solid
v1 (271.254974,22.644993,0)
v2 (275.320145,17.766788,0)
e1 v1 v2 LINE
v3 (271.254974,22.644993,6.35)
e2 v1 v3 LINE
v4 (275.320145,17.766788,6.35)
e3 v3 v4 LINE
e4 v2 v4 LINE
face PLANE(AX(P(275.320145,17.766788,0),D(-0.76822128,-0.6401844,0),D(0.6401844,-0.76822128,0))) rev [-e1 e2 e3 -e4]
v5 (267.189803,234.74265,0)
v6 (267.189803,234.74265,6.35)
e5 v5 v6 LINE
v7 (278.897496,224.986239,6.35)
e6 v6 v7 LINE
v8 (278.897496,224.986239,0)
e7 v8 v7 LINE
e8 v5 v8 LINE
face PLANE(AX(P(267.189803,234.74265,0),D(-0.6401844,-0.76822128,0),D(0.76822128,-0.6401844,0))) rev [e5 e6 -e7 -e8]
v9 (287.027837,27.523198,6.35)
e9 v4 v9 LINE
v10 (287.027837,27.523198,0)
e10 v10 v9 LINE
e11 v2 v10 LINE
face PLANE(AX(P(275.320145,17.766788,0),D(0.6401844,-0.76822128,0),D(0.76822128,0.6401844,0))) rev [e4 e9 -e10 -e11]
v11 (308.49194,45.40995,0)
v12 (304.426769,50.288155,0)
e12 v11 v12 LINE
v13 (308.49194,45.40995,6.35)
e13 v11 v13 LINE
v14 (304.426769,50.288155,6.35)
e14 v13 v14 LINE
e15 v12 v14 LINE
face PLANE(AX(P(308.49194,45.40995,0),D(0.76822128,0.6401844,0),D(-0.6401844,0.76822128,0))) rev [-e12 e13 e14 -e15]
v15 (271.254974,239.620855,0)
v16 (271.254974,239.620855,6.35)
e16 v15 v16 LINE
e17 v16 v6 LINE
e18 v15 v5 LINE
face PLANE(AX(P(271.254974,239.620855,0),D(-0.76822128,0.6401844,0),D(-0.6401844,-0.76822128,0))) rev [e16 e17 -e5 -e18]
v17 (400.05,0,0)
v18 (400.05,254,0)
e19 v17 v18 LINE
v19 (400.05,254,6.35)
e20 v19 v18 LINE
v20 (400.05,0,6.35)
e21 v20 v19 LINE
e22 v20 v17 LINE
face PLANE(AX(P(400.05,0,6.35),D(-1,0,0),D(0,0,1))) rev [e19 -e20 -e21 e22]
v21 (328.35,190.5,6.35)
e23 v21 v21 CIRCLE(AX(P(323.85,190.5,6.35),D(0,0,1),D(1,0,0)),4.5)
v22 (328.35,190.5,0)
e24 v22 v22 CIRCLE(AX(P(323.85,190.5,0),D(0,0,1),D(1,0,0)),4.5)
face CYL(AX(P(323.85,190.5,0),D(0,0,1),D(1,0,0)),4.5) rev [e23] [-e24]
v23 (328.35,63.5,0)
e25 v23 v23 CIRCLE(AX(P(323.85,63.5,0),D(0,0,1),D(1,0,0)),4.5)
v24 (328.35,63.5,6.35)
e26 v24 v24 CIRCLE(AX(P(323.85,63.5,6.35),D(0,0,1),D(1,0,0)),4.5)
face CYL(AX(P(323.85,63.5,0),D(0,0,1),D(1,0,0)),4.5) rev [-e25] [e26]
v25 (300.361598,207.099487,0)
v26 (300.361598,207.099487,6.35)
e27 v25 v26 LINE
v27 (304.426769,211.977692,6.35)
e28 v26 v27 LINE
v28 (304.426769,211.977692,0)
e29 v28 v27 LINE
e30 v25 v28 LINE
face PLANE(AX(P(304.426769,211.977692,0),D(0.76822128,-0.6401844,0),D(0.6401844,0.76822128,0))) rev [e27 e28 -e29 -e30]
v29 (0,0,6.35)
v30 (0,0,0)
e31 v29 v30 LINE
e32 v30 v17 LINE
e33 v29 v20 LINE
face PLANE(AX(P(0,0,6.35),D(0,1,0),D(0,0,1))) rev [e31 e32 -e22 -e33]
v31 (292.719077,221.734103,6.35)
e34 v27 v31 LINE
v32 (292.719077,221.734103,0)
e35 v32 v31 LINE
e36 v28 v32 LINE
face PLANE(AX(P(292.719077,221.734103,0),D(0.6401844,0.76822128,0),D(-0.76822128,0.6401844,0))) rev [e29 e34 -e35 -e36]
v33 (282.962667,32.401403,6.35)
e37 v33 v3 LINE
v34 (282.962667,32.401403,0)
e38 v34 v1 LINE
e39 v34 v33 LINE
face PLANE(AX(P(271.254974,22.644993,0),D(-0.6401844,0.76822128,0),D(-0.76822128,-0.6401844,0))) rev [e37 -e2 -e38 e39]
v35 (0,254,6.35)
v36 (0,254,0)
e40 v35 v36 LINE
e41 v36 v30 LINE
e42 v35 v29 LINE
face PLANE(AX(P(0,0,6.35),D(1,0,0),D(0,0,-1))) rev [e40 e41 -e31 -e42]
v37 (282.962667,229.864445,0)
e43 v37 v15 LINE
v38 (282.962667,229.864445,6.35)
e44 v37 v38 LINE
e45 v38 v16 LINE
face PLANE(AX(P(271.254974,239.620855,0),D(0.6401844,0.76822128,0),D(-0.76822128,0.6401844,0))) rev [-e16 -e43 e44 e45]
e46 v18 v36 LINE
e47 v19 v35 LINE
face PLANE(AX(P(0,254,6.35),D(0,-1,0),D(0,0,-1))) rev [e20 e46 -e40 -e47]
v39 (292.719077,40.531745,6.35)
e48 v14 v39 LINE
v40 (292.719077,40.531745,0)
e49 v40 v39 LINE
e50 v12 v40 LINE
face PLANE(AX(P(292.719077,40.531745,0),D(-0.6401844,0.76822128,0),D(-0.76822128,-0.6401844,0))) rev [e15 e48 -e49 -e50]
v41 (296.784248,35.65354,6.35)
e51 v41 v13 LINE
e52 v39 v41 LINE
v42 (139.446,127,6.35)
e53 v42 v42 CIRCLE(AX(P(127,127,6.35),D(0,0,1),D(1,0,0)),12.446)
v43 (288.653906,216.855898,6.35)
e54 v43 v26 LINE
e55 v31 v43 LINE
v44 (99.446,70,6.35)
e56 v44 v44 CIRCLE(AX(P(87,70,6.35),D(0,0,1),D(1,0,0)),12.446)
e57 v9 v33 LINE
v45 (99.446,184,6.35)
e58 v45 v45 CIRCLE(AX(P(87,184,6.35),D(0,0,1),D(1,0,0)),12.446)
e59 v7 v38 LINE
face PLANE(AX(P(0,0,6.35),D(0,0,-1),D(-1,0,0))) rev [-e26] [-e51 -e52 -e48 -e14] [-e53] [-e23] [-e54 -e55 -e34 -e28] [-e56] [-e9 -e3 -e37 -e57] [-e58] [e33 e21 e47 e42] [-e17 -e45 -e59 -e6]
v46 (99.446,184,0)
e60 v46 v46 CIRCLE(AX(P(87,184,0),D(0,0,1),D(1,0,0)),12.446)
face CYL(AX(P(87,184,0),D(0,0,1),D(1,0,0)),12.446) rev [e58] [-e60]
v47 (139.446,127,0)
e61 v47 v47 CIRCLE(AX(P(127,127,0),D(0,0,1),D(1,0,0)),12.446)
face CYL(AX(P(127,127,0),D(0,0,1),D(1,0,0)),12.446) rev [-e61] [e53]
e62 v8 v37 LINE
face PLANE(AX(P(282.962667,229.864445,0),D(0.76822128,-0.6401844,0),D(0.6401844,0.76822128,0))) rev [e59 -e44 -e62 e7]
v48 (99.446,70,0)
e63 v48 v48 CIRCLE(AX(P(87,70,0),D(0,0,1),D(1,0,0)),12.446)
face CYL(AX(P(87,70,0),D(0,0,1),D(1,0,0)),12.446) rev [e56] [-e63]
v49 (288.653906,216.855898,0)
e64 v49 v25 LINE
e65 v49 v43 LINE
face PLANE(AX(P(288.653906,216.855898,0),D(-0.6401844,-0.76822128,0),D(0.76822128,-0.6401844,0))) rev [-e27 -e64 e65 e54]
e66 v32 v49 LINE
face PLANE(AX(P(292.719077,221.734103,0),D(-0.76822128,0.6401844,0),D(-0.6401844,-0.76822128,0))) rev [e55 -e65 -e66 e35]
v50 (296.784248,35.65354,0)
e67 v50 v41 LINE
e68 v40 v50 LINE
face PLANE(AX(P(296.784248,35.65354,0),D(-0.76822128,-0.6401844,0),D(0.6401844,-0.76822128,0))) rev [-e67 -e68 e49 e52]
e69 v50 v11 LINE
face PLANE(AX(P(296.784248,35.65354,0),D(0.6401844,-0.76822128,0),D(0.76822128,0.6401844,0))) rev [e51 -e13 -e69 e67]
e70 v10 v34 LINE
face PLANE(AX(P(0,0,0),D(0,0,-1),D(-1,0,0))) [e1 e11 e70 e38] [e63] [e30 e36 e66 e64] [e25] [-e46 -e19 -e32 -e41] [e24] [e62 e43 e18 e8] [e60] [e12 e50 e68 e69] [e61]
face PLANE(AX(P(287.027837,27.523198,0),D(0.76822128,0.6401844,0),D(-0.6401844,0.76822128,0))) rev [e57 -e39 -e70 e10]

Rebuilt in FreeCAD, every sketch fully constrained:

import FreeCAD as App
import Part
import Sketcher

V = App.Vector
Q = App.Units.Quantity

doc = App.newDocument("Part")
body = doc.addObject("PartDesign::Body", "Body")

# Sketch on XY plane
sketch1 = doc.addObject("Sketcher::SketchObject", "Sketch")
body.addObject(sketch1)
sketch1.AttachmentSupport = (doc.XY_Plane, [""])
sketch1.MapMode = "FlatFace"
sketch1.addGeometry([
    Part.LineSegment(V(0, 254, 0), V(0, 0, 0)),
    Part.LineSegment(V(0, 0, 0), V(400, 0, 0)),
    Part.LineSegment(V(400, 0, 0), V(400, 254, 0)),
    Part.LineSegment(V(400, 254, 0), V(0, 254, 0)),
], False)
sketch1.addConstraint([
    Sketcher.Constraint("Coincident", 0, 2, 1, 1),
    Sketcher.Constraint("Coincident", 1, 2, 2, 1),
    Sketcher.Constraint("Coincident", 2, 2, 3, 1),
    Sketcher.Constraint("Coincident", 3, 2, 0, 1),
    Sketcher.Constraint("Vertical", 0),
    Sketcher.Constraint("Horizontal", 1),
    Sketcher.Constraint("Vertical", 2),
    Sketcher.Constraint("Horizontal", 3),
    Sketcher.Constraint("Coincident", 0, 2, -1, 1),
    Sketcher.Constraint("DistanceY", 0, 2, 0, 1, Q("10 in")),
    Sketcher.Constraint("DistanceX", 1, 1, 1, 2, Q("15.75 in")),
])
pad1 = doc.addObject("PartDesign::Pad", "Pad")
body.addObject(pad1)
pad1.Profile = sketch1
pad1.Length = Q("0.25 in")

# Sketch on XY plane
sketch2 = doc.addObject("Sketcher::SketchObject", "Sketch001")
body.addObject(sketch2)
sketch2.AttachmentSupport = (doc.XY_Plane, [""])
sketch2.MapMode = "FlatFace"
sketch2.AttachmentOffset = App.Placement(V(0, 0, 0.25 * 25.4), App.Rotation())
sketch2.addGeometry([
    Part.Circle(V(323.9, 63.5, 0), V(0, 0, 1), 4.5),  # 0
    Part.Circle(V(323.9, 190.5, 0), V(0, 0, 1), 4.5),  # 1
    Part.Circle(V(127, 127, 0), V(0, 0, 1), 12.4),  # 2
    Part.Circle(V(87, 70, 0), V(0, 0, 1), 12.4),  # 3
    Part.Circle(V(87, 184, 0), V(0, 0, 1), 12.4),  # 4
    Part.LineSegment(V(275.3, 17.8, 0), V(287, 27.5, 0)),  # 5
    Part.LineSegment(V(287, 27.5, 0), V(283, 32.4, 0)),  # 6
    Part.LineSegment(V(283, 32.4, 0), V(271.3, 22.6, 0)),  # 7
    Part.LineSegment(V(271.3, 22.6, 0), V(275.3, 17.8, 0)),  # 8
    Part.LineSegment(V(296.8, 35.7, 0), V(308.5, 45.4, 0)),  # 9
    Part.LineSegment(V(308.5, 45.4, 0), V(304.4, 50.3, 0)),  # 10
    Part.LineSegment(V(304.4, 50.3, 0), V(292.7, 40.5, 0)),  # 11
    Part.LineSegment(V(292.7, 40.5, 0), V(296.8, 35.7, 0)),  # 12
    Part.LineSegment(V(283, 229.9, 0), V(271.3, 239.6, 0)),  # 13
    Part.LineSegment(V(271.3, 239.6, 0), V(267.2, 234.7, 0)),  # 14
    Part.LineSegment(V(267.2, 234.7, 0), V(278.9, 225, 0)),  # 15
    Part.LineSegment(V(278.9, 225, 0), V(283, 229.9, 0)),  # 16
    Part.LineSegment(V(304.4, 212, 0), V(292.7, 221.7, 0)),  # 17
    Part.LineSegment(V(292.7, 221.7, 0), V(288.7, 216.9, 0)),  # 18
    Part.LineSegment(V(288.7, 216.9, 0), V(300.4, 207.1, 0)),  # 19
    Part.LineSegment(V(300.4, 207.1, 0), V(304.4, 212, 0)),  # 20
], False)
sketch2.addConstraint([
    Sketcher.Constraint("Coincident", 5, 2, 6, 1),
    Sketcher.Constraint("Coincident", 6, 2, 7, 1),
    Sketcher.Constraint("Coincident", 7, 2, 8, 1),
    Sketcher.Constraint("Coincident", 8, 2, 5, 1),
    Sketcher.Constraint("Coincident", 9, 2, 10, 1),
    Sketcher.Constraint("Coincident", 10, 2, 11, 1),
    Sketcher.Constraint("Coincident", 11, 2, 12, 1),
    Sketcher.Constraint("Coincident", 12, 2, 9, 1),
    Sketcher.Constraint("Coincident", 13, 2, 14, 1),
    Sketcher.Constraint("Coincident", 14, 2, 15, 1),
    Sketcher.Constraint("Coincident", 15, 2, 16, 1),
    Sketcher.Constraint("Coincident", 16, 2, 13, 1),
    Sketcher.Constraint("Coincident", 17, 2, 18, 1),
    Sketcher.Constraint("Coincident", 18, 2, 19, 1),
    Sketcher.Constraint("Coincident", 19, 2, 20, 1),
    Sketcher.Constraint("Coincident", 20, 2, 17, 1),
    Sketcher.Constraint("Equal", 0, 1),
    Sketcher.Constraint("Equal", 2, 3),
    Sketcher.Constraint("Equal", 3, 4),
    Sketcher.Constraint("Perpendicular", 5, 6),
    Sketcher.Constraint("Perpendicular", 6, 7),
    Sketcher.Constraint("Perpendicular", 7, 8),
    Sketcher.Constraint("Perpendicular", 8, 9),
    Sketcher.Constraint("Perpendicular", 9, 10),
    Sketcher.Constraint("Perpendicular", 10, 11),
    Sketcher.Constraint("Perpendicular", 11, 12),
    Sketcher.Constraint("Perpendicular", 13, 14),
    Sketcher.Constraint("Perpendicular", 14, 15),
    Sketcher.Constraint("Perpendicular", 15, 16),
    Sketcher.Constraint("Perpendicular", 16, 17),
    Sketcher.Constraint("Perpendicular", 17, 18),
    Sketcher.Constraint("Perpendicular", 18, 19),
    Sketcher.Constraint("Perpendicular", 19, 20),
    Sketcher.Constraint("Vertical", 0, 3, 1, 3),
    Sketcher.Constraint("Vertical", 3, 3, 4, 3),
    Sketcher.Constraint("Vertical", 7, 2, 13, 2),
    Sketcher.Constraint("Vertical", 6, 2, 16, 2),
    Sketcher.Constraint("Vertical", 11, 2, 17, 2),
    Sketcher.Constraint("Vertical", 10, 2, 20, 2),
    Sketcher.Constraint("Equal", 7, 9),
    Sketcher.Constraint("Equal", 8, 10),
    Sketcher.Constraint("Equal", 11, 13),
    Sketcher.Constraint("Equal", 12, 14),
    Sketcher.Constraint("Equal", 16, 18),
    Sketcher.Constraint("Diameter", 2, Q("0.98 in")),
    Sketcher.Constraint("DistanceX", -1, 1, 2, 3, Q("5 in")),
    Sketcher.Constraint("DistanceY", -1, 1, 2, 3, Q("5 in")),
    Sketcher.Constraint("DistanceY", 0, 3, 1, 3, Q("5 in")),
    Sketcher.Constraint("Distance", 5, Q("0.6 in")),
    Sketcher.Constraint("DistanceY", -1, 1, 0, 3, Q("2.5 in")),
    Sketcher.Constraint("Distance", 6, Q("0.25 in")),
    Sketcher.Constraint("Diameter", 0, 9.0),
    Sketcher.Constraint("DistanceX", -1, 1, 0, 3, Q("12.75 in")),
    Sketcher.Constraint("DistanceX", -1, 1, 3, 3, 87.0),
    Sketcher.Constraint("DistanceY", -1, 1, 3, 3, 70.0),
    Sketcher.Constraint("DistanceY", -1, 1, 4, 3, 184.0),
    Sketcher.Constraint("DistanceX", -1, 1, 19, 2, 300.361598),
    Sketcher.Constraint("DistanceY", 10, 2, 13, 2, 189.3327),
    Sketcher.Constraint("DistanceX", -1, 1, 9, 2, 308.49194),
    Sketcher.Constraint("DistanceY", -1, 1, 9, 2, 45.40995),
    Sketcher.Constraint("DistanceX", 5, 2, 10, 2, 17.398932),
    Sketcher.Constraint("DistanceY", 6, 2, 11, 2, 8.130342),
    Sketcher.Constraint("DistanceY", 17, 2, 16, 2, 8.130342),
])
pocket1 = doc.addObject("PartDesign::Pocket", "Pocket")
body.addObject(pocket1)
pocket1.Profile = sketch2
pocket1.Length = Q("0.25 in")

doc.recompute()
